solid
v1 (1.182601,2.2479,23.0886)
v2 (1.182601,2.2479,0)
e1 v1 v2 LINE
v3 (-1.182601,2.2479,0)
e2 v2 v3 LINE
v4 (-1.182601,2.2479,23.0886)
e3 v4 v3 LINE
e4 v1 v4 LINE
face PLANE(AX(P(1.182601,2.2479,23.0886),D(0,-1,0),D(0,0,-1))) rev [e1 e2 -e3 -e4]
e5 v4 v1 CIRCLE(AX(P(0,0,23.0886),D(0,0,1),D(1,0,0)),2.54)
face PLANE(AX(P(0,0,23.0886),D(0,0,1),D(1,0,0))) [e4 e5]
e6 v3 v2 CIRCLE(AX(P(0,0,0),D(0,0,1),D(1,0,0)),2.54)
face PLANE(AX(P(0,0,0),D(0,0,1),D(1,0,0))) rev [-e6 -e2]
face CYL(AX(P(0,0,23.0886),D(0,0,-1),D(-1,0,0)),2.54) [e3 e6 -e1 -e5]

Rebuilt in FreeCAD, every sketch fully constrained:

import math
import FreeCAD as App
import Part
import Sketcher
from FreeCAD import Vector
Q = App.Units.Quantity

doc = App.newDocument("Part")
body = doc.addObject("PartDesign::Body", "Body")

sketch1 = doc.addObject("Sketcher::SketchObject", "Sketch")
body.addObject(sketch1)
sketch1.AttachmentSupport = (doc.XY_Plane, [""])
sketch1.MapMode = "FlatFace"
sketch1.addGeometry([
    Part.ArcOfCircle(Part.Circle(Vector(0, 0, 0), Vector(0, 0, 1), 2.54), math.radians(117.748479), math.radians(422.251521)),
    Part.ArcOfCircle(Part.Circle(Vector(0, 0, 0), Vector(0, 0, 1), 2.54), math.radians(62.251521), math.radians(117.748479)),
], False)
sketch1.addConstraint([
    Sketcher.Constraint("Tangent", 0, 1, 1, 2),
    Sketcher.Constraint("Coincident", 1, 1, 0, 2),
    Sketcher.Constraint("Coincident", 0, 3, -1, 1),
    Sketcher.Constraint("Horizontal", 0, 1, 1, 1),
    Sketcher.Constraint("Radius", 0, Q("0.1 in")),
    Sketcher.Constraint("DistanceY", -1, 1, 0, 1, Q("0.0885 in")),
])
pad1 = doc.addObject("PartDesign::Pad", "Pad")
body.addObject(pad1)
pad1.Profile = sketch1
pad1.Length = Q("0.909 in")

sketch2 = doc.addObject("Sketcher::SketchObject", "Sketch001")
body.addObject(sketch2)
sketch2.AttachmentSupport = (doc.XY_Plane, [""])
sketch2.MapMode = "FlatFace"
sketch2.addGeometry([
    Part.LineSegment(Vector(1.182601, 2.2479, 0), Vector(-1.182601, 2.2479, 0)),
    Part.ArcOfCircle(Part.Circle(Vector(0, 0, 0), Vector(0, 0, 1), 2.54), math.radians(62.251521), math.radians(117.748479)),
], False)
sketch2.addConstraint([
    Sketcher.Constraint("Coincident", 0, 1, 1, 1),
    Sketcher.Constraint("Coincident", 1, 2, 0, 2),
    Sketcher.Constraint("Horizontal", 0),
    Sketcher.Constraint("Coincident", 1, 3, -1, 1),
    Sketcher.Constraint("Radius", 1, Q("0.1 in")),
    Sketcher.Constraint("DistanceY", -1, 1, 0, 1, Q("0.0885 in")),
])
pocket1 = doc.addObject("PartDesign::Pocket", "Pocket")
body.addObject(pocket1)
pocket1.Profile = sketch2
pocket1.Length = Q("0.909 in")
pocket1.Reversed = True

doc.recompute()
